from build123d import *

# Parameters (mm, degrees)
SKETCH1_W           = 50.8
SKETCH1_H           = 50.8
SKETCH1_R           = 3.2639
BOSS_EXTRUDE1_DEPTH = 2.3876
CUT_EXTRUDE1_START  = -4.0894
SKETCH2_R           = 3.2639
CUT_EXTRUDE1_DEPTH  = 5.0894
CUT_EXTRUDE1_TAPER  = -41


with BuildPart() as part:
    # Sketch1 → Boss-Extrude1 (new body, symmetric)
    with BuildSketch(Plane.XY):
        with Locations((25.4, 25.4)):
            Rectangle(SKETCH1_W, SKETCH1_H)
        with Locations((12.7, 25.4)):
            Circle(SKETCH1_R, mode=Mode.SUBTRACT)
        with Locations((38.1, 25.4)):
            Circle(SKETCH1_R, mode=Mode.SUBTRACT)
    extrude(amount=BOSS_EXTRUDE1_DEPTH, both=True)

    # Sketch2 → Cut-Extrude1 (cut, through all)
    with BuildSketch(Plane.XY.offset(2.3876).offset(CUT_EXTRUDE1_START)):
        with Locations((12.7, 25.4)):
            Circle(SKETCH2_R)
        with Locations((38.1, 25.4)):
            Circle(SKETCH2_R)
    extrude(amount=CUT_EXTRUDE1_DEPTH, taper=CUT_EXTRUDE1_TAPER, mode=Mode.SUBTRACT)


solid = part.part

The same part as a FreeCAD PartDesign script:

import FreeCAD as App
import Part
import Sketcher
from FreeCAD import Vector
Q = App.Units.Quantity


def add_polygon(sketch, points):
    """Adds a closed chain of lines whose ends are joined by coincident constraints."""
    first, n = sketch.GeometryCount, len(points)
    for a, b in zip(points, points[1:] + points[:1]):
        sketch.addGeometry(Part.LineSegment(App.Vector(*a, 0), App.Vector(*b, 0)), False)
    for i in range(n):
        sketch.addConstraint(Sketcher.Constraint("Coincident", first + i, 2, first + (i + 1) % n, 1))

doc = App.newDocument("Part")
body = doc.addObject("PartDesign::Body", "Body")

# Sketch on XY plane
sketch1 = body.newObject("Sketcher::SketchObject", "Sketch")
sketch1.AttachmentSupport = (doc.getObject("XY_Plane"), [""])
sketch1.MapMode = "FlatFace"
add_polygon(sketch1, [(0, 50.8), (0, 0), (50.8, 0), (50.8, 50.8)])  # lines 0-3
sketch1.addGeometry(Part.Circle(Vector(12.7, 25.4, 0), Vector(0, 0, 1), 3.2639), False)  # 4
sketch1.addGeometry(Part.Circle(Vector(38.1, 25.4, 0), Vector(0, 0, 1), 3.2639), False)  # 5
sketch1.addConstraint([
    Sketcher.Constraint("Vertical", 0),
    Sketcher.Constraint("Horizontal", 1),
    Sketcher.Constraint("Vertical", 2),
    Sketcher.Constraint("Horizontal", 3),
    Sketcher.Constraint("Coincident", 0, 2, -1, 1),
    Sketcher.Constraint("Equal", 4, 5),
    Sketcher.Constraint("Horizontal", 4, 3, 5, 3),
    Sketcher.Constraint("Equal", 3, 0),
    Sketcher.Constraint("DistanceX", 1, 1, 1, 2, Q("2 in")),
    Sketcher.Constraint("Diameter", 4, Q("0.257 in")),
    Sketcher.Constraint("DistanceY", -1, 1, 4, 3, Q("1 in")),
    Sketcher.Constraint("DistanceX", 4, 3, 5, 3, Q("1 in")),
    Sketcher.Constraint("DistanceX", -1, 1, 4, 3, Q("0.5 in")),
])
pad1 = body.newObject("PartDesign::Pad", "Pad")
pad1.Profile = sketch1
pad1.Length = Q("0.188 in")
pad1.Midplane = True

# Sketch on XY plane
sketch2 = body.newObject("Sketcher::SketchObject", "Sketch001")
sketch2.AttachmentSupport = (doc.getObject("XY_Plane"), [""])
sketch2.MapMode = "FlatFace"
sketch2.AttachmentOffset = App.Placement(Vector(0, 0, -0.067 * 25.4), App.Rotation())
sketch2.addGeometry([
    Part.Circle(Vector(12.7, 25.4, 0), Vector(0, 0, 1), 3.2639),
    Part.Circle(Vector(38.1, 25.4, 0), Vector(0, 0, 1), 3.2639),
], False)
sketch2.addConstraint([
    Sketcher.Constraint("Equal", 0, 1),
    Sketcher.Constraint("Horizontal", 0, 3, 1, 3),
    Sketcher.Constraint("Diameter", 0, Q("0.257 in")),
    Sketcher.Constraint("DistanceY", -1, 1, 0, 3, Q("1 in")),
    Sketcher.Constraint("DistanceX", 0, 3, 1, 3, Q("1 in")),
    Sketcher.Constraint("DistanceX", -1, 1, 0, 3, Q("0.5 in")),
])
pocket1 = body.newObject("PartDesign::Pocket", "Pocket")
pocket1.Profile = sketch2
pocket1.Type = "ThroughAll"
pocket1.Reversed = True
pocket1.TaperAngle = 41

doc.recompute()
